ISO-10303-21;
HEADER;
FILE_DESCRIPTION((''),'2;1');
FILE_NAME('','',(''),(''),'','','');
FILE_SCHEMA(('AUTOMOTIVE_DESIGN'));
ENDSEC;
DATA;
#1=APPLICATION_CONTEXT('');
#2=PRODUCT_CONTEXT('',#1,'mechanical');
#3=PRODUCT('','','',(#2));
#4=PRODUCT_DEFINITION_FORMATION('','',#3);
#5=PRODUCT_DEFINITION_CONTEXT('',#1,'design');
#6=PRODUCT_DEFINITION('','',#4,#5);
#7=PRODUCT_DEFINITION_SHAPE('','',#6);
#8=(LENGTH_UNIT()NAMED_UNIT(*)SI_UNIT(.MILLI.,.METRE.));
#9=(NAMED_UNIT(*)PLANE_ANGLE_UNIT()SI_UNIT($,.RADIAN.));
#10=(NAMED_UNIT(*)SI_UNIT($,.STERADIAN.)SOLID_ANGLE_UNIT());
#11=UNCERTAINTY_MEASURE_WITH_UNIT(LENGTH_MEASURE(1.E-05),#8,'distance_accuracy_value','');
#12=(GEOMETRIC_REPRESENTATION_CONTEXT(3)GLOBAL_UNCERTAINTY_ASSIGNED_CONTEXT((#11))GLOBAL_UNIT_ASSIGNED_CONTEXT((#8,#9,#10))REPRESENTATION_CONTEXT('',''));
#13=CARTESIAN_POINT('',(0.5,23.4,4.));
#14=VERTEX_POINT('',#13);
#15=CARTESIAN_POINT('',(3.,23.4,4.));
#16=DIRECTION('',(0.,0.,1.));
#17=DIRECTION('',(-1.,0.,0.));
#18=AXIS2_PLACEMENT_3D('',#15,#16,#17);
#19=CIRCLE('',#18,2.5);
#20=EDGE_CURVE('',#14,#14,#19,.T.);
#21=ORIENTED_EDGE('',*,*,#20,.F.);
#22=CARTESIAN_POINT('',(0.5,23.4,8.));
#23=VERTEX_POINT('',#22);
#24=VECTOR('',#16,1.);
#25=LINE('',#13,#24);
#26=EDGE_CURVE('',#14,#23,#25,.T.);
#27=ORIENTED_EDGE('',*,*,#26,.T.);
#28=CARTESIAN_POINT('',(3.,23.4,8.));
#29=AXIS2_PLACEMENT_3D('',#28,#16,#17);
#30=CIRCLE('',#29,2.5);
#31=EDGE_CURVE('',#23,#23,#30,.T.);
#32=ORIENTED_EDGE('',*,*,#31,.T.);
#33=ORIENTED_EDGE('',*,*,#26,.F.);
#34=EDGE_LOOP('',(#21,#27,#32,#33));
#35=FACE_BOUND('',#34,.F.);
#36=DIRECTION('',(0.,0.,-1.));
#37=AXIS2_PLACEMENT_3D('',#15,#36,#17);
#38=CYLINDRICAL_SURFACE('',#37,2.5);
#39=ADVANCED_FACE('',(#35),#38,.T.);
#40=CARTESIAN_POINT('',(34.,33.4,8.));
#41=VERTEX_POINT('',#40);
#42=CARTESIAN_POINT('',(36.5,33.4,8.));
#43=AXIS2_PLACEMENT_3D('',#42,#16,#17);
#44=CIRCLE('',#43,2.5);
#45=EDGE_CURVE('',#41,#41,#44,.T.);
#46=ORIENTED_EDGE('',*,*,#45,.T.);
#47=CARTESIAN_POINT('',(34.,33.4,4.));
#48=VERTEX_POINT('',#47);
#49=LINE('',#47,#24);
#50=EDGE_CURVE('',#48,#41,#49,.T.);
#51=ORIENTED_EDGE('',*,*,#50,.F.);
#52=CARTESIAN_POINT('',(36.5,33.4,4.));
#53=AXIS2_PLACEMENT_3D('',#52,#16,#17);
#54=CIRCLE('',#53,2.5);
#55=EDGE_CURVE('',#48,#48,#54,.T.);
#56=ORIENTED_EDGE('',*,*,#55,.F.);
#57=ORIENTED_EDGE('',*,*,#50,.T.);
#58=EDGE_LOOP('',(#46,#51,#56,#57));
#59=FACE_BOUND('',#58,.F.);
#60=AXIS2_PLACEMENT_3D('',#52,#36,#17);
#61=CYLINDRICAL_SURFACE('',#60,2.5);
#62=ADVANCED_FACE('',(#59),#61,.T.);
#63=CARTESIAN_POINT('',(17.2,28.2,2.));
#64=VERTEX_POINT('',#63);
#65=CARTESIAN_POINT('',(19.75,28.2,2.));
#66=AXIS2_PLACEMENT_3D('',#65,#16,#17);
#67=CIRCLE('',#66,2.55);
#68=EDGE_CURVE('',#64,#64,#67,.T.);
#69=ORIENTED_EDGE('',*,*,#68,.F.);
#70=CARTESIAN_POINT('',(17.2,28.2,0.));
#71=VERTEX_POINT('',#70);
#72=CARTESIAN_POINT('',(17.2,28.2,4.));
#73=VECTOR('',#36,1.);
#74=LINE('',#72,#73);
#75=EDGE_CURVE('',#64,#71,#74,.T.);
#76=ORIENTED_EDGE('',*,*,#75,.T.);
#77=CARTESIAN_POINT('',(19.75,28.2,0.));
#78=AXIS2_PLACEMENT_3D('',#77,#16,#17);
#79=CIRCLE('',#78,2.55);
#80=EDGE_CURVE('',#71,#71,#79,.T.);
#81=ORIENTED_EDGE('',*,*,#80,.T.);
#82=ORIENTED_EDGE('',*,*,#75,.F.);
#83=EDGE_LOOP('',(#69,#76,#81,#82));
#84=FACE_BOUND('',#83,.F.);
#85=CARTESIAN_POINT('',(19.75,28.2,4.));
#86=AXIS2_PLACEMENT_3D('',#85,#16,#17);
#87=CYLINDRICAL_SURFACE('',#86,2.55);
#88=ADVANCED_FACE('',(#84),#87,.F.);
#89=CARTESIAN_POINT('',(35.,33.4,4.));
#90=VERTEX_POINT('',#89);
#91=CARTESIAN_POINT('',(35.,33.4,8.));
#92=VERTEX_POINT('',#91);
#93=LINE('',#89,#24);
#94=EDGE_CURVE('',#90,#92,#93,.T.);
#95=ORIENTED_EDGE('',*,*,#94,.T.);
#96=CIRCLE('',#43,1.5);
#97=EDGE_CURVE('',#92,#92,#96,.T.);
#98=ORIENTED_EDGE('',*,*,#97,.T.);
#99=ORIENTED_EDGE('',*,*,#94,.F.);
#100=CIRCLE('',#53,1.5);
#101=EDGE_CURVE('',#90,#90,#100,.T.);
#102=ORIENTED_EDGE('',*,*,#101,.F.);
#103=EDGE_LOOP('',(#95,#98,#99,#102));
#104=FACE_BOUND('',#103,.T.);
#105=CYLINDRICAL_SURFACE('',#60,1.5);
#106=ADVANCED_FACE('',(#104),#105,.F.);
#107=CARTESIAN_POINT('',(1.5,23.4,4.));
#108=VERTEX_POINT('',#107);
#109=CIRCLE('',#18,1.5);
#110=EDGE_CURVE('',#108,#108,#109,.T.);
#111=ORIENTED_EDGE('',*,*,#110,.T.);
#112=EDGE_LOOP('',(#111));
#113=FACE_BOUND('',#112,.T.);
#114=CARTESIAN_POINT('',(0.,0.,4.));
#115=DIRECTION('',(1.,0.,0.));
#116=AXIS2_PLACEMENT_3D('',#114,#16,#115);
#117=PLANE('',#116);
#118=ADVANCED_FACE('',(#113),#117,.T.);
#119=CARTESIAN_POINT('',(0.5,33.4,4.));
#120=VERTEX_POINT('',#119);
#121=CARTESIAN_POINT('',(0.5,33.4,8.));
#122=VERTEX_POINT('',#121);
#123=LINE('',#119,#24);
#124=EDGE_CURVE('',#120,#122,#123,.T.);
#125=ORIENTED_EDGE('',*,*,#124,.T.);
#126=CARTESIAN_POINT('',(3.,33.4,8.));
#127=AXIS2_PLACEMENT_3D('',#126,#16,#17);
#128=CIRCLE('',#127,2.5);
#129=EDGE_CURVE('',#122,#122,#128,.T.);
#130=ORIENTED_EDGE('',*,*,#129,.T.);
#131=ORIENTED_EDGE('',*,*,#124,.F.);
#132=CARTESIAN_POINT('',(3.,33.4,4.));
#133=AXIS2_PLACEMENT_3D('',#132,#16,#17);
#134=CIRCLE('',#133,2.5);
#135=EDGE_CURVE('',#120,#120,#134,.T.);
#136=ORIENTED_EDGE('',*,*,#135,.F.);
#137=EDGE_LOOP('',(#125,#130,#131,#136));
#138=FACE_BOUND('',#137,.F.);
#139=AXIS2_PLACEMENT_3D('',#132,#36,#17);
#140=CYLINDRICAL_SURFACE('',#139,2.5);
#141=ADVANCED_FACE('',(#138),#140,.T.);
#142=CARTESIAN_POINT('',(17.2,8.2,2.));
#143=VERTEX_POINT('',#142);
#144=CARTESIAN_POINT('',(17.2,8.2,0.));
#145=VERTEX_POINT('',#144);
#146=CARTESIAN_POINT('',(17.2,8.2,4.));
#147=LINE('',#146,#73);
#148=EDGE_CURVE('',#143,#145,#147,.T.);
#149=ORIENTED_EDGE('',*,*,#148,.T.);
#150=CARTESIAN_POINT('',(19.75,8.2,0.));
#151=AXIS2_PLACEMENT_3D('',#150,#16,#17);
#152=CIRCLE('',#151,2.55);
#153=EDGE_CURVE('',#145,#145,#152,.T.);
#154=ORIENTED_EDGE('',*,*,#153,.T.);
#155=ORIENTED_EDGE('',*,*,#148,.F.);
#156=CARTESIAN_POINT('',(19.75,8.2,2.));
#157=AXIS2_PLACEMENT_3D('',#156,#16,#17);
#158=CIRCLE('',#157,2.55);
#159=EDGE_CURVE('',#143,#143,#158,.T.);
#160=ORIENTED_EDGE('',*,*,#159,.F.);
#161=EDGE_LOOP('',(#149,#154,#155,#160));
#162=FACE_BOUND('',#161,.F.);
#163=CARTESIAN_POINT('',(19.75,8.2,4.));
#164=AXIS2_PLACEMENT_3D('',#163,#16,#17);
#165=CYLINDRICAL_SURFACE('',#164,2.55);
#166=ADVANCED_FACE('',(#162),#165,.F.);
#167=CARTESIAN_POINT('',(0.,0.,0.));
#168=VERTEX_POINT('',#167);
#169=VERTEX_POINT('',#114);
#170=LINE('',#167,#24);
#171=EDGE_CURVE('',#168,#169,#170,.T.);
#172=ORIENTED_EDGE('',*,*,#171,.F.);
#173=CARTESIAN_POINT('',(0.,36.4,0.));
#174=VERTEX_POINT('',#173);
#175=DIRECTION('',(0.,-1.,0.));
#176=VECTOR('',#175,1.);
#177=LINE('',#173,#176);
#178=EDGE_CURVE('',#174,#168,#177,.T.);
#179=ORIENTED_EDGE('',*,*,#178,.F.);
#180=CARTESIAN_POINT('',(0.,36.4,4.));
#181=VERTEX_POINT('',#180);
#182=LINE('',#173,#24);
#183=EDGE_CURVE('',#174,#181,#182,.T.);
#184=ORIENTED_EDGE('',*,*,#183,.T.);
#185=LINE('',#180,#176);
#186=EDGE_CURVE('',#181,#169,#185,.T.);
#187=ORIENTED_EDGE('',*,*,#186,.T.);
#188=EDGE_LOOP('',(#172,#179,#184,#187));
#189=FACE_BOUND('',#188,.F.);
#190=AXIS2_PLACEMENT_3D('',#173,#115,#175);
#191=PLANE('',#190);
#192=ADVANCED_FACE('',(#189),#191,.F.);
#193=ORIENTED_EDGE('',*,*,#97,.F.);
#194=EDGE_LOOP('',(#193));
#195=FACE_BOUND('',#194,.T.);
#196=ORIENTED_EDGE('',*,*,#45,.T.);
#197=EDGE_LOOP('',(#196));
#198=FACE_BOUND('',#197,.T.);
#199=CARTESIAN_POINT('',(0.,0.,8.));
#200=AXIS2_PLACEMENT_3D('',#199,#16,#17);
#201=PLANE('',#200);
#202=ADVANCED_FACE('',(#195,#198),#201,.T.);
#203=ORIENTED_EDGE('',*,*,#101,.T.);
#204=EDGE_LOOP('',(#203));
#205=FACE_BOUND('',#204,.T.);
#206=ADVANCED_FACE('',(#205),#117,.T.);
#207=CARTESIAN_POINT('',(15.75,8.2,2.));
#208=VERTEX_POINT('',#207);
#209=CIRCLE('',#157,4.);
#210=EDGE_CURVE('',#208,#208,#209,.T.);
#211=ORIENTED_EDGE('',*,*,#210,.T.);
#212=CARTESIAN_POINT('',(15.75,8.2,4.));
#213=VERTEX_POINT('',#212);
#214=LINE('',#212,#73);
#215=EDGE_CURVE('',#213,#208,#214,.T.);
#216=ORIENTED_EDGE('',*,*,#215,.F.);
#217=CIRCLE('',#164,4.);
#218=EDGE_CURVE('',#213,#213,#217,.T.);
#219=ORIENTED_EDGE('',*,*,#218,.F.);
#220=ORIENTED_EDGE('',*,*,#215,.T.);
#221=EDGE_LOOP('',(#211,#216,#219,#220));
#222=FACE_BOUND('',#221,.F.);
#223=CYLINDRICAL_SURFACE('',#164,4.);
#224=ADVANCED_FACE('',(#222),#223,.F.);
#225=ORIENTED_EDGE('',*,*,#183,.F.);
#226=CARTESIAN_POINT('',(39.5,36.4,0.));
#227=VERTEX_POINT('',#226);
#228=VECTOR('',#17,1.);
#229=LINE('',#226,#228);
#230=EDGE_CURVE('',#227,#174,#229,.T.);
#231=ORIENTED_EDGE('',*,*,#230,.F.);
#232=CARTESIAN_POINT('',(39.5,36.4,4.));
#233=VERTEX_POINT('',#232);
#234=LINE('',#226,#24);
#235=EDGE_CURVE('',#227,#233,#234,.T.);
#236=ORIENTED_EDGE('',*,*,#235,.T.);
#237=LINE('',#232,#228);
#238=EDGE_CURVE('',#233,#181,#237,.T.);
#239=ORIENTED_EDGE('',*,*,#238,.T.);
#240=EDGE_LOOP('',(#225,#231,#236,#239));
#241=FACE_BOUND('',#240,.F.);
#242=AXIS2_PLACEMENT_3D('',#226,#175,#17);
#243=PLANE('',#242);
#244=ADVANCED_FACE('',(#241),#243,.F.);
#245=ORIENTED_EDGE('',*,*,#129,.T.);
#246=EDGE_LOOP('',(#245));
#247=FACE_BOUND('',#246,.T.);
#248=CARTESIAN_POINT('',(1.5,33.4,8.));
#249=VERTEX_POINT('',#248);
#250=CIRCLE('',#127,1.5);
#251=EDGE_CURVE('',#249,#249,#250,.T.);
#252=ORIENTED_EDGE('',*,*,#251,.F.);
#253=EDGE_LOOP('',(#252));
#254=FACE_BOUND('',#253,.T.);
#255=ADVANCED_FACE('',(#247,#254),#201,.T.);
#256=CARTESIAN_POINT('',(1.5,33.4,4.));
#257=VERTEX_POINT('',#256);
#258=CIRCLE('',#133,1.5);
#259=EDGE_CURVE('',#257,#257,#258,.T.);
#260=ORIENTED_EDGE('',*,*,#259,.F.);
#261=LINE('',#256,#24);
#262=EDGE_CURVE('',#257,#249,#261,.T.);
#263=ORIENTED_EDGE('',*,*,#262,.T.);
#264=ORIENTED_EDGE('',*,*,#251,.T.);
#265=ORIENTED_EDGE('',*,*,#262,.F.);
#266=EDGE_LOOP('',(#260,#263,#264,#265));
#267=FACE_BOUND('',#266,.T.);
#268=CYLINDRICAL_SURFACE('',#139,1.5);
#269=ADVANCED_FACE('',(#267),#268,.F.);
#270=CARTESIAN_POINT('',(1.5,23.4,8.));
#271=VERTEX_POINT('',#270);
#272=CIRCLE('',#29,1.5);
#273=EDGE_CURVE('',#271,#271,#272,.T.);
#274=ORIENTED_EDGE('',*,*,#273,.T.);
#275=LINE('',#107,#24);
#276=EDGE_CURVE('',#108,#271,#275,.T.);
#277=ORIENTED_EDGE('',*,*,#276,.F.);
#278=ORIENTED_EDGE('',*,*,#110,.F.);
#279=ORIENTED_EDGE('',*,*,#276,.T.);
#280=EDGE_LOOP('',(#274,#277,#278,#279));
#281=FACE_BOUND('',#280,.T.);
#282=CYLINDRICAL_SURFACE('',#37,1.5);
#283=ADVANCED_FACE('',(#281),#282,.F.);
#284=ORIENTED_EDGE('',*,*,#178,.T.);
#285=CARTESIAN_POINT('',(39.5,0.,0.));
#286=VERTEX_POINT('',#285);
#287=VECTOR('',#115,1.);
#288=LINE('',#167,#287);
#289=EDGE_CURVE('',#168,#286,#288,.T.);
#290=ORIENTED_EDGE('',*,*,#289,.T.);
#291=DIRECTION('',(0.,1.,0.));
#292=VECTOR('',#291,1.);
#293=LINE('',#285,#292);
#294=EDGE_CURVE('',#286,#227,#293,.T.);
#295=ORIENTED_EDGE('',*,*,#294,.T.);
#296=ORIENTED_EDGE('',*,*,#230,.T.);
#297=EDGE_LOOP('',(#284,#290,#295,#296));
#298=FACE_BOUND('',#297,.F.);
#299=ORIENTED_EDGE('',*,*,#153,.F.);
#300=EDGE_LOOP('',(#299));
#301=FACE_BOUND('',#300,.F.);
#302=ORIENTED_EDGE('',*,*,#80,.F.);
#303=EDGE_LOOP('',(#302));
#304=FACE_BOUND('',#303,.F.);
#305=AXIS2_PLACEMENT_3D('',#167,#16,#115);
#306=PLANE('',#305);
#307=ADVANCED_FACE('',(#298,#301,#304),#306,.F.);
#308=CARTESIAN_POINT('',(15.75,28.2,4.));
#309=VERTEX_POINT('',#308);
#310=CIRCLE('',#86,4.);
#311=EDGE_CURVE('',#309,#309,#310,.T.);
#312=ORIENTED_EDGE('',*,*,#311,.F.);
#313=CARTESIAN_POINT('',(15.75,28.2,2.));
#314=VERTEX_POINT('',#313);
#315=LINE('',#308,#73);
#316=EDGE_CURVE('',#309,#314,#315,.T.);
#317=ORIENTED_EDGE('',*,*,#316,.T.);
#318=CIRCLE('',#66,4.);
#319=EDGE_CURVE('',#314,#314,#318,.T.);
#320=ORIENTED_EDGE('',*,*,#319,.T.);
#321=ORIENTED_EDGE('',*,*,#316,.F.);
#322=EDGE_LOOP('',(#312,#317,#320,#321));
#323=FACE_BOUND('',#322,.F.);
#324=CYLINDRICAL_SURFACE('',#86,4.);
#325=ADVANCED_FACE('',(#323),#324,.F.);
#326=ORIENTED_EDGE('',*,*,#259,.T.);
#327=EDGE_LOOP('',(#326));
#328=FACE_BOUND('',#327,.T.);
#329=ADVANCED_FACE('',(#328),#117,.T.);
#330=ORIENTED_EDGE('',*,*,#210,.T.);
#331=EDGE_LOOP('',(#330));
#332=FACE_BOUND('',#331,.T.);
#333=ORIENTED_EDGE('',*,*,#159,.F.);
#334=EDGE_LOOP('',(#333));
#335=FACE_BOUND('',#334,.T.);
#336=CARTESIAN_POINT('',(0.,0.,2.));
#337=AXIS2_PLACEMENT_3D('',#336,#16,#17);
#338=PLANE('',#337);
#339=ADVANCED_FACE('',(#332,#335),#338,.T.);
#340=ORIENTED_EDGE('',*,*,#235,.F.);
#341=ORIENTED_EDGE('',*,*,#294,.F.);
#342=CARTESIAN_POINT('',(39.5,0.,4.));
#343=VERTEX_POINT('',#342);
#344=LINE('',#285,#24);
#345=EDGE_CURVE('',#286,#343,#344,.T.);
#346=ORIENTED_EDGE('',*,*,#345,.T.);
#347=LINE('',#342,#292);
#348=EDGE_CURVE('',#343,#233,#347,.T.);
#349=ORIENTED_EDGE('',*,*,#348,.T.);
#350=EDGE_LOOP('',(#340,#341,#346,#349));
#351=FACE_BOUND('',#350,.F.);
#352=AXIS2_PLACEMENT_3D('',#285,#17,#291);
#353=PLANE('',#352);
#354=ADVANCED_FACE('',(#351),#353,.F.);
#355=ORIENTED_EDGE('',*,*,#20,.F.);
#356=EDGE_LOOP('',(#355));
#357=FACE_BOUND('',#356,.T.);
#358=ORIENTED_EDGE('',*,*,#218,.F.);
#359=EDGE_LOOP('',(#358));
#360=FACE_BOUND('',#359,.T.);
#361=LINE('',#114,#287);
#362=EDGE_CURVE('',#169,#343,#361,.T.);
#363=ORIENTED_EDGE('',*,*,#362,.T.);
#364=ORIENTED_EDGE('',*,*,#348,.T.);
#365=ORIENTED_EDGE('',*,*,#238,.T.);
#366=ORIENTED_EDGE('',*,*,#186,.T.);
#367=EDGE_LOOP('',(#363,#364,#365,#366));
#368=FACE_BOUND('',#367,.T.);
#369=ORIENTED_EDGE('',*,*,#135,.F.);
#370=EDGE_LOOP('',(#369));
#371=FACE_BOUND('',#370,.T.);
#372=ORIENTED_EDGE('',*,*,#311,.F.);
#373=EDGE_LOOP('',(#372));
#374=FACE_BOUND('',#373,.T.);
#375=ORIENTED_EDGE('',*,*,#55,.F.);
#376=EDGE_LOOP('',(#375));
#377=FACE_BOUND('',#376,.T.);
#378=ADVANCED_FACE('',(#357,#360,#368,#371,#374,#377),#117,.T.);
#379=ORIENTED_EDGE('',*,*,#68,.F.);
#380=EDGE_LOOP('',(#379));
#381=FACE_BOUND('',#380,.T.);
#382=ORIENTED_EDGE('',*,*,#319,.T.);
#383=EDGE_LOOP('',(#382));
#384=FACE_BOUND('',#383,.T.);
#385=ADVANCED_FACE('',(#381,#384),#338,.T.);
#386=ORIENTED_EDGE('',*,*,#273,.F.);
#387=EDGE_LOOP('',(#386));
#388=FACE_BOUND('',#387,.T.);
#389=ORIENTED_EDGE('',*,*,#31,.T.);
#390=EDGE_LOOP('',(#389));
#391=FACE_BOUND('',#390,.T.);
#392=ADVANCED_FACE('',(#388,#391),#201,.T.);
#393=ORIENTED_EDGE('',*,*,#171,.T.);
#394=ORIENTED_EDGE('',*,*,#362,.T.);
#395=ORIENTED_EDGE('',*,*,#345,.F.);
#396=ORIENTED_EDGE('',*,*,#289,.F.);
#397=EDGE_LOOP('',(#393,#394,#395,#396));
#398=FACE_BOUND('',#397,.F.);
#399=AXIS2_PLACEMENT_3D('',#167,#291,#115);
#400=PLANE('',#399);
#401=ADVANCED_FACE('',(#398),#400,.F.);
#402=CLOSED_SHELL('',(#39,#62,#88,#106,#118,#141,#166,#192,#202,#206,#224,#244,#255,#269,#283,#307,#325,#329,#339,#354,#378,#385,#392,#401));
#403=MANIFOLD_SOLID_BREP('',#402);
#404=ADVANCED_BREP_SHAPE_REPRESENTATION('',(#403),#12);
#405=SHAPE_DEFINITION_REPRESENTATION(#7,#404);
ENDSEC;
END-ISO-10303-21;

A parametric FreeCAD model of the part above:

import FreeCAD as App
import Part
import Sketcher
from FreeCAD import Vector
Q = App.Units.Quantity

doc = App.newDocument("Part")
body = doc.addObject("PartDesign::Body", "Body")

sketch1 = body.newObject("Sketcher::SketchObject", "Sketch")
sketch1.AttachmentSupport = (doc.getObject("XY_Plane"), [""])
sketch1.MapMode = "FlatFace"
sketch1.addGeometry([
    Part.LineSegment(Vector(0, 36, 0), Vector(0, 0, 0)),
    Part.LineSegment(Vector(0, 0, 0), Vector(40, 0, 0)),
    Part.LineSegment(Vector(40, 0, 0), Vector(40, 36, 0)),
    Part.LineSegment(Vector(40, 36, 0), Vector(0, 36, 0)),
], False)
sketch1.addConstraint([
    Sketcher.Constraint("Coincident", 0, 2, 1, 1),
    Sketcher.Constraint("Coincident", 1, 2, 2, 1),
    Sketcher.Constraint("Coincident", 2, 2, 3, 1),
    Sketcher.Constraint("Coincident", 3, 2, 0, 1),
    Sketcher.Constraint("Vertical", 0),
    Sketcher.Constraint("Horizontal", 1),
    Sketcher.Constraint("Vertical", 2),
    Sketcher.Constraint("Horizontal", 3),
    Sketcher.Constraint("Coincident", 0, 2, -1, 1),
    Sketcher.Constraint("DistanceX", 1, 1, 1, 2, Q("39.5 mm")),
    Sketcher.Constraint("DistanceY", 0, 2, 0, 1, Q("36.4 mm")),
])
pad1 = body.newObject("PartDesign::Pad", "Pad")
pad1.Profile = sketch1
pad1.Length = 4

sketch2 = body.newObject("Sketcher::SketchObject", "Sketch001")
sketch2.AttachmentSupport = (doc.getObject("XY_Plane"), [""])
sketch2.MapMode = "FlatFace"
sketch2.AttachmentOffset = App.Placement(Vector(0, 0, 4), App.Rotation())
sketch2.addGeometry(Part.Circle(Vector(19.8, 8.2, 0), Vector(0, 0, 1), 2.5), False)
sketch2.addConstraint([
    Sketcher.Constraint("Diameter", 0, Q("5.1 mm")),
    Sketcher.Constraint("DistanceY", -1, 1, 0, 3, Q("8.2 mm")),
    Sketcher.Constraint("DistanceX", -1, 1, 0, 3, Q("19.75 mm")),
])
pocket1 = body.newObject("PartDesign::Pocket", "Pocket")
pocket1.Profile = sketch2
pocket1.Length = 4

sketch3 = body.newObject("Sketcher::SketchObject", "Sketch002")
sketch3.AttachmentSupport = (doc.getObject("XY_Plane"), [""])
sketch3.MapMode = "FlatFace"
sketch3.AttachmentOffset = App.Placement(Vector(0, 0, 4), App.Rotation())
sketch3.addGeometry(Part.Circle(Vector(19.8, 28.2, 0), Vector(0, 0, 1), 2.5), False)
sketch3.addConstraint([
    Sketcher.Constraint("Diameter", 0, Q("5.1 mm")),
    Sketcher.Constraint("DistanceX", -1, 1, 0, 3, Q("19.75 mm")),
    Sketcher.Constraint("DistanceY", -1, 1, 0, 3, Q("28.2 mm")),
])
pocket2 = body.newObject("PartDesign::Pocket", "Pocket001")
pocket2.Profile = sketch3
pocket2.Length = 4

sketch4 = body.newObject("Sketcher::SketchObject", "Sketch003")
sketch4.AttachmentSupport = (doc.getObject("XY_Plane"), [""])
sketch4.MapMode = "FlatFace"
sketch4.AttachmentOffset = App.Placement(Vector(0, 0, 4), App.Rotation())
sketch4.addGeometry([
    Part.Circle(Vector(19.8, 8.2, 0), Vector(0, 0, 1), 4),
    Part.Circle(Vector(19.8, 8.2, 0), Vector(0, 0, 1), 2.5),
    Part.Circle(Vector(19.8, 28.2, 0), Vector(0, 0, 1), 4),
    Part.Circle(Vector(19.8, 28.2, 0), Vector(0, 0, 1), 2.5),
], False)
sketch4.addConstraint([
    Sketcher.Constraint("Coincident", 1, 3, 0, 3),
    Sketcher.Constraint("Coincident", 3, 3, 2, 3),
    Sketcher.Constraint("Equal", 0, 2),
    Sketcher.Constraint("Equal", 1, 3),
    Sketcher.Constraint("Vertical", 1, 3, 2, 3),
    Sketcher.Constraint("Diameter", 0, Q("8 mm")),
    Sketcher.Constraint("Diameter", 1, Q("5.1 mm")),
    Sketcher.Constraint("DistanceY", -1, 1, 0, 3, Q("8.2 mm")),
    Sketcher.Constraint("DistanceX", -1, 1, 0, 3, Q("19.75 mm")),
    Sketcher.Constraint("DistanceY", 0, 3, 2, 3, Q("20 mm")),
])
pocket3 = body.newObject("PartDesign::Pocket", "Pocket002")
pocket3.Profile = sketch4
pocket3.Length = 2

sketch5 = body.newObject("Sketcher::SketchObject", "Sketch004")
sketch5.AttachmentSupport = (doc.getObject("XY_Plane"), [""])
sketch5.MapMode = "FlatFace"
sketch5.AttachmentOffset = App.Placement(Vector(0, 0, 4), App.Rotation())
sketch5.addGeometry([
    Part.Circle(Vector(36.5, 33.4, 0), Vector(0, 0, 1), 2.5),
    Part.Circle(Vector(36.5, 33.4, 0), Vector(0, 0, 1), 1.5),
    Part.Circle(Vector(3, 33.4, 0), Vector(0, 0, 1), 2.5),
    Part.Circle(Vector(3, 33.4, 0), Vector(0, 0, 1), 1.5),
    Part.Circle(Vector(3, 23.4, 0), Vector(0, 0, 1), 2.5),
    Part.Circle(Vector(3, 23.4, 0), Vector(0, 0, 1), 1.5),
], False)
sketch5.addConstraint([
    Sketcher.Constraint("Coincident", 1, 3, 0, 3),
    Sketcher.Constraint("Coincident", 3, 3, 2, 3),
    Sketcher.Constraint("Coincident", 5, 3, 4, 3),
    Sketcher.Constraint("Equal", 0, 2),
    Sketcher.Constraint("Equal", 1, 3),
    Sketcher.Constraint("Equal", 2, 4),
    Sketcher.Constraint("Equal", 3, 5),
    Sketcher.Constraint("Horizontal", 1, 3, 2, 3),
    Sketcher.Constraint("Vertical", 3, 3, 4, 3),
    Sketcher.Constraint("Diameter", 0, Q("5 mm")),
    Sketcher.Constraint("Diameter", 1, Q("3 mm")),
    Sketcher.Constraint("DistanceX", -1, 1, 2, 3, Q("3 mm")),
    Sketcher.Constraint("DistanceY", 4, 3, 2, 3, Q("10 mm")),
    Sketcher.Constraint("DistanceX", -1, 1, 0, 3, Q("36.5 mm")),
    Sketcher.Constraint("DistanceY", -1, 1, 0, 3, Q("33.4 mm")),
])
pad2 = body.newObject("PartDesign::Pad", "Pad001")
pad2.Profile = sketch5
pad2.Length = 4

doc.recompute()
